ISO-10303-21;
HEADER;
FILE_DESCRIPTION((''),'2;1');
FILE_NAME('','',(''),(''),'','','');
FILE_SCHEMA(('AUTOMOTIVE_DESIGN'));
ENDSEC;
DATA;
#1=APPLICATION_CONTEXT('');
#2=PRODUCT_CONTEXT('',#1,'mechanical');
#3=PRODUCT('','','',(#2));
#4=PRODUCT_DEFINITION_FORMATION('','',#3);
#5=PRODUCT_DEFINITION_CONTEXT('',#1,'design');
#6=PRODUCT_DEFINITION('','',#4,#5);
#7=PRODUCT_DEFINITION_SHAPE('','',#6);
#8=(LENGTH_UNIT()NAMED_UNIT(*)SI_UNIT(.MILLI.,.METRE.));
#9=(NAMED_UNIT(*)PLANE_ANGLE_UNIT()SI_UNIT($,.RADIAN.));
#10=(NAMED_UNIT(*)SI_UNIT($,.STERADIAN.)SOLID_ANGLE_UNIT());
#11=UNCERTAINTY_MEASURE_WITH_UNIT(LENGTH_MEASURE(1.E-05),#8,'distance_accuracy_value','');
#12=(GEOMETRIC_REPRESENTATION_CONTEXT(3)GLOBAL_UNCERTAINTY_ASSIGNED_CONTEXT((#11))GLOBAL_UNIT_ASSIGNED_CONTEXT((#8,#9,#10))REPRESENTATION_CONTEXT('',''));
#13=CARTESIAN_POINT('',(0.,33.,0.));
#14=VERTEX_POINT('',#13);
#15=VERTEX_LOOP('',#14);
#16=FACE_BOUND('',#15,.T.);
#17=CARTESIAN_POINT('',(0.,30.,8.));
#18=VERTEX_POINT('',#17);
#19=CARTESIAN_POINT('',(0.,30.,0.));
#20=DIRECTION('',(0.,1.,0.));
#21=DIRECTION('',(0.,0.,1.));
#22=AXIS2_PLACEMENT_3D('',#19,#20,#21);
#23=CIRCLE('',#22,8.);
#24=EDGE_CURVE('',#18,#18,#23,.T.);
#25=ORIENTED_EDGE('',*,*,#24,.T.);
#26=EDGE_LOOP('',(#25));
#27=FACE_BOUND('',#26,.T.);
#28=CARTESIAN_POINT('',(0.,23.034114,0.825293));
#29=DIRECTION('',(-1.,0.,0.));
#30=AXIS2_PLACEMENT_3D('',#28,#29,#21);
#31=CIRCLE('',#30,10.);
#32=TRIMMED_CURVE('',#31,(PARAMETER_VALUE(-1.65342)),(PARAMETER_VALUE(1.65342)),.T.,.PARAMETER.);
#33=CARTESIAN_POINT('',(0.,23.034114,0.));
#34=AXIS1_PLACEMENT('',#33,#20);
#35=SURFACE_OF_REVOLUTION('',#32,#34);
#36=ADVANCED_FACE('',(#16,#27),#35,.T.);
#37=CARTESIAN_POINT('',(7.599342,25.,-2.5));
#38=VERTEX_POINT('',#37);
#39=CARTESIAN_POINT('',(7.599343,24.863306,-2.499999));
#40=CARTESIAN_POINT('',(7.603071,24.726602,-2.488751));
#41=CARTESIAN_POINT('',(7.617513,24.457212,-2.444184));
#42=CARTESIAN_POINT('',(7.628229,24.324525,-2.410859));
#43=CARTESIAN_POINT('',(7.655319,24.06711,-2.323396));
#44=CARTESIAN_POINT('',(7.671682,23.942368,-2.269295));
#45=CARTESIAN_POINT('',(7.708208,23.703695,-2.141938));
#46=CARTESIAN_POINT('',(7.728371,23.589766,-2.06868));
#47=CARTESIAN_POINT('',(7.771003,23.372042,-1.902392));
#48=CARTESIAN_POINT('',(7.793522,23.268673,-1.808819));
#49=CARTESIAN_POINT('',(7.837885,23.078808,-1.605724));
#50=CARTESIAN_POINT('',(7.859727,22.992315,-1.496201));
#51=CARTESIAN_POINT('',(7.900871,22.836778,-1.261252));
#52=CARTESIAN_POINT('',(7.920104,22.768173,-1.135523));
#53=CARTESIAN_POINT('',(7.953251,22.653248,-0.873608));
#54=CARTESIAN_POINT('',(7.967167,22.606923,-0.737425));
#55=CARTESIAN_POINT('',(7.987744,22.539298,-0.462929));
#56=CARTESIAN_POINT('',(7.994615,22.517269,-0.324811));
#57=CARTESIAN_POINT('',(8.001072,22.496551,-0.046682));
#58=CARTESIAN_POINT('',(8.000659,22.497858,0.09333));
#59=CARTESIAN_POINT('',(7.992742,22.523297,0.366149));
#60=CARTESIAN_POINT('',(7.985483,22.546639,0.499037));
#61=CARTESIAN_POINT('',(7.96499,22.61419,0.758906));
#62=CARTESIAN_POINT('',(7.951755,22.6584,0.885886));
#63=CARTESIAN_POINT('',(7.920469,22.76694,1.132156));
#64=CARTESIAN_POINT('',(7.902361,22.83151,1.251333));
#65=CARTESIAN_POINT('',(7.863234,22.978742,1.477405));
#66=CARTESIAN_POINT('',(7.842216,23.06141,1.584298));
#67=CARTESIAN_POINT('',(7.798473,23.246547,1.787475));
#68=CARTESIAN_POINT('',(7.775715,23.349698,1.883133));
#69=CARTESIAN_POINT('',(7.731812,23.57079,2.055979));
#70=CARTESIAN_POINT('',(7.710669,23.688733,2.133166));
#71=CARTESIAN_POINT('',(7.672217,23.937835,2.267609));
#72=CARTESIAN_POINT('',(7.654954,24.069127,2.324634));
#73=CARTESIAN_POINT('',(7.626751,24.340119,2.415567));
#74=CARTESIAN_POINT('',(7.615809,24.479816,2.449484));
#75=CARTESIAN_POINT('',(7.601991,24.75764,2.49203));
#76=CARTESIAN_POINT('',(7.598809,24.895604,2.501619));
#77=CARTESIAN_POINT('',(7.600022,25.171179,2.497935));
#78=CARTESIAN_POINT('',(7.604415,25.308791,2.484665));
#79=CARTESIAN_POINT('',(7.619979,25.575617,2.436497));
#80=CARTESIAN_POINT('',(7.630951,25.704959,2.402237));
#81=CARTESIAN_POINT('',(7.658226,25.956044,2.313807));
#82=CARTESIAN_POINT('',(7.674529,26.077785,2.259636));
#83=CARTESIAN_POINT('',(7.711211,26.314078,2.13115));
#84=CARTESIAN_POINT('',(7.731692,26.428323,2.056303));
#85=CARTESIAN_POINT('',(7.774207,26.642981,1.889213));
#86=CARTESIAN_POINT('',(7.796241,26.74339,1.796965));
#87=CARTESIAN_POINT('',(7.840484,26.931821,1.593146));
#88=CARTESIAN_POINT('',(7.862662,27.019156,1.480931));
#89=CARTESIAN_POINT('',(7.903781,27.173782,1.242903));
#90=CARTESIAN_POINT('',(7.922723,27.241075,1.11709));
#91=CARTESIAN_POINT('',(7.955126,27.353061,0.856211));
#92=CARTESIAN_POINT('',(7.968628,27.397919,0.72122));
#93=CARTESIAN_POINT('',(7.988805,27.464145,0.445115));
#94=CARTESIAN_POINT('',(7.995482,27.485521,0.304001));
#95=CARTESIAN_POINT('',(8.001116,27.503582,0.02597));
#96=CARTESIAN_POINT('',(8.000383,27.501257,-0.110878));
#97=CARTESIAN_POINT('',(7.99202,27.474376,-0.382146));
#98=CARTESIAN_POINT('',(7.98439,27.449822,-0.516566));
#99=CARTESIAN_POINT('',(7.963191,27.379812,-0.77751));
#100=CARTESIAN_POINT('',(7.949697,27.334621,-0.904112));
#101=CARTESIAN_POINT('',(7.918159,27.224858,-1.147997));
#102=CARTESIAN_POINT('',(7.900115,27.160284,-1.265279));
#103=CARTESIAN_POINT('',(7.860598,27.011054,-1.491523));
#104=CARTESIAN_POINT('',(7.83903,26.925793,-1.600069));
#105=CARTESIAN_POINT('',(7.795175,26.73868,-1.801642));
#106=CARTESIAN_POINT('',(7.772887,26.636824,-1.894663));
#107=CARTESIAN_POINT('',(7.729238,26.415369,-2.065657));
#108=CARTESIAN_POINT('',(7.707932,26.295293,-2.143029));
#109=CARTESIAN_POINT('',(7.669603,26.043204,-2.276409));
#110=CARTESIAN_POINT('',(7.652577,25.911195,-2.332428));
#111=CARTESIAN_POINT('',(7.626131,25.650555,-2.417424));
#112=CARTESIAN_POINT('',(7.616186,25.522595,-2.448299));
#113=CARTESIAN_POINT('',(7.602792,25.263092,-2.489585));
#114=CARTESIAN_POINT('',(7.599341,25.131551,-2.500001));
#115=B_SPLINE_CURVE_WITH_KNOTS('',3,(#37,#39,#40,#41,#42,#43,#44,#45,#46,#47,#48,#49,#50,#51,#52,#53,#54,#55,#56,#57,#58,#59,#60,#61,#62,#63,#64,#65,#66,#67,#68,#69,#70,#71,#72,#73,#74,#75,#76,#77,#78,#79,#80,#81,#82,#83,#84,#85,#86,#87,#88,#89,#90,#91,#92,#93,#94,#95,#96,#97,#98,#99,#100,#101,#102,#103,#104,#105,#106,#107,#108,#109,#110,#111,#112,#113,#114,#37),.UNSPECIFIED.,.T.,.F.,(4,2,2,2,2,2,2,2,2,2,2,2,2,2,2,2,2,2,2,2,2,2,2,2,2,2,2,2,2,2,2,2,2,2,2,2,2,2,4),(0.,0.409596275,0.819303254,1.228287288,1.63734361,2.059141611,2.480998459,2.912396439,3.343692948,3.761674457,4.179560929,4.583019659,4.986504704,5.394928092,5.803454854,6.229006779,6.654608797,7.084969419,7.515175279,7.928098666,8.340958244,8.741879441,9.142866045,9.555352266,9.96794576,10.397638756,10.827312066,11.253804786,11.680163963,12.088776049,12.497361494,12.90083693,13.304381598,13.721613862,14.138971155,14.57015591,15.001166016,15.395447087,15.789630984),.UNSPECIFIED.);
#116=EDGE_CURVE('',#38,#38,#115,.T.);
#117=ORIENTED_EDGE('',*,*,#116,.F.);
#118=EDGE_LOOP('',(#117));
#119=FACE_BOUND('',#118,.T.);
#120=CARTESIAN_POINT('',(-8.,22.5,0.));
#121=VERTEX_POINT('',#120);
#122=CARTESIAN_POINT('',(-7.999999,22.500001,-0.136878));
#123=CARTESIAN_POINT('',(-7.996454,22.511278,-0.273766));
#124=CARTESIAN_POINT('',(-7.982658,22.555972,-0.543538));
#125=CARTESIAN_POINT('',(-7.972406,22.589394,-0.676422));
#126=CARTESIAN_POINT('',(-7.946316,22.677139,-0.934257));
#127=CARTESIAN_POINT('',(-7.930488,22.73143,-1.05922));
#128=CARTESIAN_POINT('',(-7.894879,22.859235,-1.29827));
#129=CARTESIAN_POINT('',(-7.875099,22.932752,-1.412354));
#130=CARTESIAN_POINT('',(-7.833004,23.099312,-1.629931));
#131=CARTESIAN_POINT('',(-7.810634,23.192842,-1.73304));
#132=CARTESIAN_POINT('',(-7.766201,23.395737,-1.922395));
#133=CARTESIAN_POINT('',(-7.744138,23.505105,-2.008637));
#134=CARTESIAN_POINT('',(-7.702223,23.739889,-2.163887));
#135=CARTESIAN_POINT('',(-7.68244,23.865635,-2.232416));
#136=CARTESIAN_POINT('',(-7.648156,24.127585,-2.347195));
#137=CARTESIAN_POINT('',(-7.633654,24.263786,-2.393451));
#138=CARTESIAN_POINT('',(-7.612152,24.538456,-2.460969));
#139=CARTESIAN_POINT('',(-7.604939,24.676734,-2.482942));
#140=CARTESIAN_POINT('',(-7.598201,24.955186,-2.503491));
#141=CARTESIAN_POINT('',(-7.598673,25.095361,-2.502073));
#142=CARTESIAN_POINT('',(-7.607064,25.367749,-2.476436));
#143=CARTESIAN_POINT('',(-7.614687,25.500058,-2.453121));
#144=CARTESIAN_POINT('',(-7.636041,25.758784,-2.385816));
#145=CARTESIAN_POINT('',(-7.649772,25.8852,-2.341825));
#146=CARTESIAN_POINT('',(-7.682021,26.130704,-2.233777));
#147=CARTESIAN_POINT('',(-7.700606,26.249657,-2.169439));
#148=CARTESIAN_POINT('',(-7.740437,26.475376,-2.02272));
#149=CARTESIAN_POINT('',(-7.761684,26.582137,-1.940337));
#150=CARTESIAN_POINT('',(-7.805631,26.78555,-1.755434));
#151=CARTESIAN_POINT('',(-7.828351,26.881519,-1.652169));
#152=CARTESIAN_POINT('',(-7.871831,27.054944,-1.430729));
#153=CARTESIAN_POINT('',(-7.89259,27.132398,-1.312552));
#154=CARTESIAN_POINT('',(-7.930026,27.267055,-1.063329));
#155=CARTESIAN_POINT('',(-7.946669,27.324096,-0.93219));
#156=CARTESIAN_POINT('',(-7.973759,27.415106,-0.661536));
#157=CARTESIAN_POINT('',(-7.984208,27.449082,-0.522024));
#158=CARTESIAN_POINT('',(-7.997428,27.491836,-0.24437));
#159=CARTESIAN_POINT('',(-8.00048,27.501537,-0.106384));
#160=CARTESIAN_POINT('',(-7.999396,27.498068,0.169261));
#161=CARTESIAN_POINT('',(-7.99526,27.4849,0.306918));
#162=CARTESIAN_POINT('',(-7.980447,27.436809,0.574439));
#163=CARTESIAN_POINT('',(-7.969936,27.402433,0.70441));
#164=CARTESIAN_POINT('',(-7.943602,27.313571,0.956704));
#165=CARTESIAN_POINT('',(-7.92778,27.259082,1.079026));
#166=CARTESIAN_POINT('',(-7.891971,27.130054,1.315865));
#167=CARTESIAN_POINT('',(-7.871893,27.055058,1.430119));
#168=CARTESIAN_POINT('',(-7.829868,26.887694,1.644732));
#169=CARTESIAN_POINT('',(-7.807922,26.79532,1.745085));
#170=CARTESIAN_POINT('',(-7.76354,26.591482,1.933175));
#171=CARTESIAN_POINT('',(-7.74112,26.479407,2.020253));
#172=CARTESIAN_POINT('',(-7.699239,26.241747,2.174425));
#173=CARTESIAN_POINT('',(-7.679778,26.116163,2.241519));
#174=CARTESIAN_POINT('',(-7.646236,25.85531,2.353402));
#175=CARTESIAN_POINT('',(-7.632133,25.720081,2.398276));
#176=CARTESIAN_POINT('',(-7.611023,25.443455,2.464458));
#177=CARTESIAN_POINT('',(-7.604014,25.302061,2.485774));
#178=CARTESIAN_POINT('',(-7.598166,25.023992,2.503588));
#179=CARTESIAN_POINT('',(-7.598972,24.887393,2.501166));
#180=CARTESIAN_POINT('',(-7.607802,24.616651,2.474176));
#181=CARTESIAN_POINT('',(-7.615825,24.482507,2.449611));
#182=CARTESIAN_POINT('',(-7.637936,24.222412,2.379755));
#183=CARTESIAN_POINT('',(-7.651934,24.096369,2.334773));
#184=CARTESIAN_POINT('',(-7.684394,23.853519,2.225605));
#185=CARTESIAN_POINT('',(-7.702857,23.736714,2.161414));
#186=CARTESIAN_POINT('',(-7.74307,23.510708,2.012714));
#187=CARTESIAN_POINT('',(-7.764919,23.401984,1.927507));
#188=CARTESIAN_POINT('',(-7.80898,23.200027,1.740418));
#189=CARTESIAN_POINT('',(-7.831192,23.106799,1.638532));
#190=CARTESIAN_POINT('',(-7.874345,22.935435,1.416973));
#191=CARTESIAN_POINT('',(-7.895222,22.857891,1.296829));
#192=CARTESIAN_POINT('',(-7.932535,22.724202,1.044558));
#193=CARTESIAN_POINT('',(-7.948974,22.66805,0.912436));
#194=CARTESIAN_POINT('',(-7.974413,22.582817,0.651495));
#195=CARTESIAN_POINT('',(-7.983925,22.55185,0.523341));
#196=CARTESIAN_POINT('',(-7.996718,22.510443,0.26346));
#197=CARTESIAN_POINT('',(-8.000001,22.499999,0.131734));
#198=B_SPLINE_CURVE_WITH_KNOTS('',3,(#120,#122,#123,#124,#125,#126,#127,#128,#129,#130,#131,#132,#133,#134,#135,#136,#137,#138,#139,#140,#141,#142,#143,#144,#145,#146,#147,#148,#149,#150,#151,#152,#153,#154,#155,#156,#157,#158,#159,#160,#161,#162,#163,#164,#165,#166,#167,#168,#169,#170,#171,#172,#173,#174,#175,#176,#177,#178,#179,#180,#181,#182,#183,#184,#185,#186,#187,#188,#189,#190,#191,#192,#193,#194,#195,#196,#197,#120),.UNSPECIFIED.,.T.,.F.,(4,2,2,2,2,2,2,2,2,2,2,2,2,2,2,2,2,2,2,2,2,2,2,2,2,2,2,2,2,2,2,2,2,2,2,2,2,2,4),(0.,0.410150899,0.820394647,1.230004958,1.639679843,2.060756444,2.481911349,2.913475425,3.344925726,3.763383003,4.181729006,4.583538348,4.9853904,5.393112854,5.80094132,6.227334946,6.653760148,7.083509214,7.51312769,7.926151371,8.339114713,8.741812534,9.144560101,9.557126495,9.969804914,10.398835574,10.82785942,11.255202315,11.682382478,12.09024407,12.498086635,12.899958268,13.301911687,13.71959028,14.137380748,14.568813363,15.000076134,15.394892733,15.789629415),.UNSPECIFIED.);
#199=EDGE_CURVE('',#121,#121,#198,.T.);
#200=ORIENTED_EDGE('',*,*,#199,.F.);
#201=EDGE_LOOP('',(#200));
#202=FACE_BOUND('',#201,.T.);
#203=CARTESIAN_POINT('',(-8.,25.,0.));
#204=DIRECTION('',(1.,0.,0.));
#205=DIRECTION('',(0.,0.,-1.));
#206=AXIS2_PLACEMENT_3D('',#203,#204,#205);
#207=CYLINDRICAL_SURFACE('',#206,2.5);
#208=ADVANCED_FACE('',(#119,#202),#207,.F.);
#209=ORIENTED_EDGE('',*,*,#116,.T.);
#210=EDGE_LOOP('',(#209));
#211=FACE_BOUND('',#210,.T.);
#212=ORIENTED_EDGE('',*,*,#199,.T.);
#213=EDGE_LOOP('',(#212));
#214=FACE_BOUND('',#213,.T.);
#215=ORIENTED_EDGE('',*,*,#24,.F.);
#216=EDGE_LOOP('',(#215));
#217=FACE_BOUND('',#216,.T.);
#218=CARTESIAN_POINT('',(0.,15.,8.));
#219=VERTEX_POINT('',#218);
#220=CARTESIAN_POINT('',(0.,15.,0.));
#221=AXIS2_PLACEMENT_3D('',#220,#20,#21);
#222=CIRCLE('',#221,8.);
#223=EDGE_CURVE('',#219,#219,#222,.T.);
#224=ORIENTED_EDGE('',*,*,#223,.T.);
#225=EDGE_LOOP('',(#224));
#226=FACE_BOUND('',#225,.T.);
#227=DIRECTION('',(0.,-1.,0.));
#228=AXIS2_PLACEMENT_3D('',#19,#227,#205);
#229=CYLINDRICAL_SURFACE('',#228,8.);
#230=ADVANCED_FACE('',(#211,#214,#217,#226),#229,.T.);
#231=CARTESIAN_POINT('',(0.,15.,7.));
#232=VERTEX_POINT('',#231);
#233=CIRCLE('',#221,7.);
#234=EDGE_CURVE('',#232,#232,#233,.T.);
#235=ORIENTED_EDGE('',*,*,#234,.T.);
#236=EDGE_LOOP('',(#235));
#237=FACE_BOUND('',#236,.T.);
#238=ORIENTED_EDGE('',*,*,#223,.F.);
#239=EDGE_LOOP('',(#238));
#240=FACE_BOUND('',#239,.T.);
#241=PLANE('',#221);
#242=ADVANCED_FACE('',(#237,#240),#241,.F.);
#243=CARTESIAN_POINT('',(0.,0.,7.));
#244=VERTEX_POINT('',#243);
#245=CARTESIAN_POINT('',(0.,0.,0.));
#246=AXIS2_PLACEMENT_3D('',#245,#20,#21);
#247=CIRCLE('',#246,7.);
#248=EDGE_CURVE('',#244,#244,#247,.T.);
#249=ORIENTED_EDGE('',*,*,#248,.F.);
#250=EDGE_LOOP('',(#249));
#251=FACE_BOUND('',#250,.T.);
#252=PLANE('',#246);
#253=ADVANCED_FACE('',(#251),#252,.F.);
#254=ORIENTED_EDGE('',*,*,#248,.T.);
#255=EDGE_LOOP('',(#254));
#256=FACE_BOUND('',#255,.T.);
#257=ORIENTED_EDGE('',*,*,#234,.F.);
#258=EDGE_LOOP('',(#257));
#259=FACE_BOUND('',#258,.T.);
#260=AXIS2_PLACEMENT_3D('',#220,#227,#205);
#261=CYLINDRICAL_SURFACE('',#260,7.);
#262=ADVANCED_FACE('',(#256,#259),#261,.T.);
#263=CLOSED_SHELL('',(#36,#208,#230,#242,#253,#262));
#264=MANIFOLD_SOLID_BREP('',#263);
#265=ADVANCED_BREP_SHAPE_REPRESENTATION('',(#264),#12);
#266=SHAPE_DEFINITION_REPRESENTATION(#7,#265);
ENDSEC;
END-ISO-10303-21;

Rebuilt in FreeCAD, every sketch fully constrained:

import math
import FreeCAD as App
import Part
import Sketcher

V = App.Vector

doc = App.newDocument("Part")
body = doc.addObject("PartDesign::Body", "Body")

sketch1 = doc.addObject("Sketcher::SketchObject", "Sketch")
body.addObject(sketch1)
sketch1.AttachmentSupport = (doc.XZ_Plane, [""])
sketch1.MapMode = "FlatFace"
sketch1.addGeometry(Part.Circle(V(0, 0, 0), V(0, 0, 1), 7), False)
sketch1.addConstraint(Sketcher.Constraint("Coincident", 0, 3, -1, 1))
sketch1.addConstraint(Sketcher.Constraint("Diameter", 0, 14.0))
pad1 = doc.addObject("PartDesign::Pad", "Pad")
body.addObject(pad1)
pad1.Profile = sketch1
pad1.Length = 15
pad1.Reversed = True

sketch2 = doc.addObject("Sketcher::SketchObject", "Sketch001")
body.addObject(sketch2)
sketch2.AttachmentSupport = (doc.XZ_Plane, [""])
sketch2.MapMode = "FlatFace"
sketch2.AttachmentOffset = App.Placement(V(0, 0, -15), App.Rotation())
sketch2.addGeometry(Part.Circle(V(0, 0, 0), V(0, 0, 1), 8), False)
sketch2.addConstraint(Sketcher.Constraint("Coincident", 0, 3, -1, 1))
sketch2.addConstraint(Sketcher.Constraint("Diameter", 0, 16.0))
pad2 = doc.addObject("PartDesign::Pad", "Pad001")
body.addObject(pad2)
pad2.Profile = sketch2
pad2.Length = 15
pad2.Reversed = True

sketch3 = doc.addObject("Sketcher::SketchObject", "Sketch002")
body.addObject(sketch3)
sketch3.AttachmentSupport = (doc.XY_Plane, [""])
sketch3.MapMode = "FlatFace"
sketch3.addGeometry(Part.LineSegment(V(0, 33, 0), V(0, 30, 0)), False)
sketch3.addGeometry(Part.LineSegment(V(0, 30, 0), V(8, 30, 0)), False)
sketch3.addGeometry(Part.ArcOfCircle(Part.Circle(V(0.8, 23, 0), V(0, 0, 1), 10), math.radians(44), math.radians(95)), False)
sketch3.addConstraint(Sketcher.Constraint("Coincident", 0, 2, 1, 1))
sketch3.addConstraint(Sketcher.Constraint("Coincident", 1, 2, 2, 1))
sketch3.addConstraint(Sketcher.Constraint("Coincident", 2, 2, 0, 1))
sketch3.addConstraint(Sketcher.Constraint("Vertical", 0))
sketch3.addConstraint(Sketcher.Constraint("Horizontal", 1))
sketch3.addConstraint(Sketcher.Constraint("PointOnObject", 0, 2, -2))
sketch3.addConstraint(Sketcher.Constraint("Radius", 2, 10.0))
sketch3.addConstraint(Sketcher.Constraint("DistanceX", 1, 1, 1, 2, 8.0))
sketch3.addConstraint(Sketcher.Constraint("DistanceY", 0, 2, 0, 1, 3.0))
sketch3.addConstraint(Sketcher.Constraint("DistanceY", -1, 1, 0, 2, 30.0))
revolution = doc.addObject("PartDesign::Revolution", "Revolution")
body.addObject(revolution)
revolution.Profile = sketch3
revolution.ReferenceAxis = (sketch3, ["V_Axis"])
revolution.Angle = 360

sketch4 = doc.addObject("Sketcher::SketchObject", "Sketch003")
body.addObject(sketch4)
sketch4.AttachmentSupport = (doc.YZ_Plane, [""])
sketch4.MapMode = "FlatFace"
sketch4.addGeometry(Part.Circle(V(25, 0, 0), V(0, 0, 1), 2.5), False)
sketch4.addConstraint(Sketcher.Constraint("PointOnObject", 0, 3, -1))
sketch4.addConstraint(Sketcher.Constraint("Diameter", 0, 5.0))
sketch4.addConstraint(Sketcher.Constraint("DistanceX", -1, 1, 0, 3, 25.0))
pocket1 = doc.addObject("PartDesign::Pocket", "Pocket")
body.addObject(pocket1)
pocket1.Profile = sketch4
pocket1.Type = "ThroughAll"
pocket1.Midplane = True

doc.recompute()
